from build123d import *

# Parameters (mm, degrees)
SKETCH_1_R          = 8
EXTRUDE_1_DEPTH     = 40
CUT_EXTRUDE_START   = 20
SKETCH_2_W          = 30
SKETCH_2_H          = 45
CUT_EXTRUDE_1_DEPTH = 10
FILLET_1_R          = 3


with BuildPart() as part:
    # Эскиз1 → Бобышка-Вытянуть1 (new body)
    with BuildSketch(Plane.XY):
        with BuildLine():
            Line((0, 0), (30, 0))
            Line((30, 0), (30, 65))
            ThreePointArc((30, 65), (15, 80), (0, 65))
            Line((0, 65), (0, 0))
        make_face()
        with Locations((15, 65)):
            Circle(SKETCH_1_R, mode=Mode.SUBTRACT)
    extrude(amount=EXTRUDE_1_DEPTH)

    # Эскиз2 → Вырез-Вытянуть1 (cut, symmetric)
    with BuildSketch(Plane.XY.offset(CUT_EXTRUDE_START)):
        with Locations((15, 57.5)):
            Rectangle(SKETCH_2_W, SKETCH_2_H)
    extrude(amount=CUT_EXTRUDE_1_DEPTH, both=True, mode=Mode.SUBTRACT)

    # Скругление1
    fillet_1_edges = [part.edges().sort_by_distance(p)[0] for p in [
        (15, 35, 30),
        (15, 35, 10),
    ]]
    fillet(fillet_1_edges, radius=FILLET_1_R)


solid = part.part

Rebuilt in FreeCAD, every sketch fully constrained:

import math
import FreeCAD as App
import Part
import Sketcher

V = App.Vector
Q = App.Units.Quantity


def edges_at(feature, points):
    """Names of the edges that pass closest to the given points."""
    edges = feature.Shape.Edges
    near = lambda p: min(range(len(edges)), key=lambda i: edges[i].distToShape(Part.Vertex(*p))[0])
    return sorted({f"Edge{near(p) + 1}" for p in points})

doc = App.newDocument("Part")
params = doc.addObject("Spreadsheet::Sheet", "Params")
for row, (alias, value) in enumerate([
    ("sketch1_diameter", "16 mm"),
    ("sketch1_radius", "15 mm"),
    ("sketch1_height", "65 mm"),
    ("pad1_length", "40 mm"),
    ("sketch2_width", "30 mm"),
    ("sketch2_height", "45 mm"),
    ("pocket1_length", "20 mm"),
    ("fillet_radius", "3 mm"),
], start=1):
    params.set(f"A{row}", alias)
    params.set(f"B{row}", "=" + value)
    params.setAlias(f"B{row}", alias)

body = doc.addObject("PartDesign::Body", "Body")

# Sketch on XY plane
sketch1 = body.newObject("Sketcher::SketchObject", "Sketch")
sketch1.AttachmentSupport = (doc.getObject("XY_Plane"), [""])
sketch1.MapMode = "FlatFace"
sketch1.addGeometry([
    Part.LineSegment(V(0, 0, 0), V(30, 0, 0)),  # 0
    Part.LineSegment(V(30, 0, 0), V(30, 65, 0)),  # 1
    Part.ArcOfCircle(Part.Circle(V(15, 65, 0), V(0, 0, 1), 15), math.radians(0), math.radians(180)),  # 2
    Part.LineSegment(V(0, 65, 0), V(0, 0, 0)),  # 3
    Part.Circle(V(15, 65, 0), V(0, 0, 1), 8),  # 4
], False)
sketch1.addConstraint([
    Sketcher.Constraint("Coincident", 0, 2, 1, 1),
    Sketcher.Constraint("Tangent", 1, 2, 2, 1),
    Sketcher.Constraint("Tangent", 2, 2, 3, 1),
    Sketcher.Constraint("Coincident", 3, 2, 0, 1),
    Sketcher.Constraint("Horizontal", 0),
    Sketcher.Constraint("Vertical", 1),
    Sketcher.Constraint("Vertical", 3),
    Sketcher.Constraint("Coincident", 3, 2, -1, 1),
    Sketcher.Constraint("Coincident", 4, 3, 2, 3),
    Sketcher.Constraint("Diameter", 4, Q("16 mm")),
    Sketcher.Constraint("Radius", 2, Q("15 mm")),
    Sketcher.Constraint("DistanceY", 1, 1, 1, 2, Q("65 mm")),
])
sketch1.setExpression("Constraints[9]", "Params.sketch1_diameter")
sketch1.setExpression("Constraints[10]", "Params.sketch1_radius")
sketch1.setExpression("Constraints[11]", "Params.sketch1_height")
pad1 = body.newObject("PartDesign::Pad", "Pad")
pad1.Profile = sketch1
pad1.setExpression("Length", "Params.pad1_length")

# Sketch on XY plane
sketch2 = body.newObject("Sketcher::SketchObject", "Sketch001")
sketch2.AttachmentSupport = (doc.getObject("XY_Plane"), [""])
sketch2.MapMode = "FlatFace"
sketch2.AttachmentOffset = App.Placement(V(0, 0, 20), App.Rotation())
sketch2.addGeometry([
    Part.LineSegment(V(0, 80, 0), V(0, 35, 0)),
    Part.LineSegment(V(0, 35, 0), V(30, 35, 0)),
    Part.LineSegment(V(30, 35, 0), V(30, 80, 0)),
    Part.LineSegment(V(30, 80, 0), V(0, 80, 0)),
], False)
sketch2.addConstraint([
    Sketcher.Constraint("Coincident", 0, 2, 1, 1),
    Sketcher.Constraint("Coincident", 1, 2, 2, 1),
    Sketcher.Constraint("Coincident", 2, 2, 3, 1),
    Sketcher.Constraint("Coincident", 3, 2, 0, 1),
    Sketcher.Constraint("Vertical", 0),
    Sketcher.Constraint("Horizontal", 1),
    Sketcher.Constraint("Vertical", 2),
    Sketcher.Constraint("Horizontal", 3),
    Sketcher.Constraint("PointOnObject", 0, 2, -2),
    Sketcher.Constraint("DistanceX", 1, 1, 1, 2, Q("30 mm")),
    Sketcher.Constraint("DistanceY", 0, 2, 0, 1, Q("45 mm")),
    Sketcher.Constraint("DistanceY", -1, 1, 0, 2, Q("35 mm")),
])
sketch2.setExpression("Constraints[9]", "Params.sketch2_width")
sketch2.setExpression("Constraints[10]", "Params.sketch2_height")
pocket1 = body.newObject("PartDesign::Pocket", "Pocket")
pocket1.Profile = sketch2
pocket1.setExpression("Length", "Params.pocket1_length")
pocket1.Midplane = True
doc.recompute()

fillet = body.newObject("PartDesign::Fillet", "Fillet")
fillet.Base = (pocket1, edges_at(pocket1, [(15, 35, 30), (15, 35, 10)]))
fillet.setExpression("Radius", "Params.fillet_radius")

doc.recompute()
